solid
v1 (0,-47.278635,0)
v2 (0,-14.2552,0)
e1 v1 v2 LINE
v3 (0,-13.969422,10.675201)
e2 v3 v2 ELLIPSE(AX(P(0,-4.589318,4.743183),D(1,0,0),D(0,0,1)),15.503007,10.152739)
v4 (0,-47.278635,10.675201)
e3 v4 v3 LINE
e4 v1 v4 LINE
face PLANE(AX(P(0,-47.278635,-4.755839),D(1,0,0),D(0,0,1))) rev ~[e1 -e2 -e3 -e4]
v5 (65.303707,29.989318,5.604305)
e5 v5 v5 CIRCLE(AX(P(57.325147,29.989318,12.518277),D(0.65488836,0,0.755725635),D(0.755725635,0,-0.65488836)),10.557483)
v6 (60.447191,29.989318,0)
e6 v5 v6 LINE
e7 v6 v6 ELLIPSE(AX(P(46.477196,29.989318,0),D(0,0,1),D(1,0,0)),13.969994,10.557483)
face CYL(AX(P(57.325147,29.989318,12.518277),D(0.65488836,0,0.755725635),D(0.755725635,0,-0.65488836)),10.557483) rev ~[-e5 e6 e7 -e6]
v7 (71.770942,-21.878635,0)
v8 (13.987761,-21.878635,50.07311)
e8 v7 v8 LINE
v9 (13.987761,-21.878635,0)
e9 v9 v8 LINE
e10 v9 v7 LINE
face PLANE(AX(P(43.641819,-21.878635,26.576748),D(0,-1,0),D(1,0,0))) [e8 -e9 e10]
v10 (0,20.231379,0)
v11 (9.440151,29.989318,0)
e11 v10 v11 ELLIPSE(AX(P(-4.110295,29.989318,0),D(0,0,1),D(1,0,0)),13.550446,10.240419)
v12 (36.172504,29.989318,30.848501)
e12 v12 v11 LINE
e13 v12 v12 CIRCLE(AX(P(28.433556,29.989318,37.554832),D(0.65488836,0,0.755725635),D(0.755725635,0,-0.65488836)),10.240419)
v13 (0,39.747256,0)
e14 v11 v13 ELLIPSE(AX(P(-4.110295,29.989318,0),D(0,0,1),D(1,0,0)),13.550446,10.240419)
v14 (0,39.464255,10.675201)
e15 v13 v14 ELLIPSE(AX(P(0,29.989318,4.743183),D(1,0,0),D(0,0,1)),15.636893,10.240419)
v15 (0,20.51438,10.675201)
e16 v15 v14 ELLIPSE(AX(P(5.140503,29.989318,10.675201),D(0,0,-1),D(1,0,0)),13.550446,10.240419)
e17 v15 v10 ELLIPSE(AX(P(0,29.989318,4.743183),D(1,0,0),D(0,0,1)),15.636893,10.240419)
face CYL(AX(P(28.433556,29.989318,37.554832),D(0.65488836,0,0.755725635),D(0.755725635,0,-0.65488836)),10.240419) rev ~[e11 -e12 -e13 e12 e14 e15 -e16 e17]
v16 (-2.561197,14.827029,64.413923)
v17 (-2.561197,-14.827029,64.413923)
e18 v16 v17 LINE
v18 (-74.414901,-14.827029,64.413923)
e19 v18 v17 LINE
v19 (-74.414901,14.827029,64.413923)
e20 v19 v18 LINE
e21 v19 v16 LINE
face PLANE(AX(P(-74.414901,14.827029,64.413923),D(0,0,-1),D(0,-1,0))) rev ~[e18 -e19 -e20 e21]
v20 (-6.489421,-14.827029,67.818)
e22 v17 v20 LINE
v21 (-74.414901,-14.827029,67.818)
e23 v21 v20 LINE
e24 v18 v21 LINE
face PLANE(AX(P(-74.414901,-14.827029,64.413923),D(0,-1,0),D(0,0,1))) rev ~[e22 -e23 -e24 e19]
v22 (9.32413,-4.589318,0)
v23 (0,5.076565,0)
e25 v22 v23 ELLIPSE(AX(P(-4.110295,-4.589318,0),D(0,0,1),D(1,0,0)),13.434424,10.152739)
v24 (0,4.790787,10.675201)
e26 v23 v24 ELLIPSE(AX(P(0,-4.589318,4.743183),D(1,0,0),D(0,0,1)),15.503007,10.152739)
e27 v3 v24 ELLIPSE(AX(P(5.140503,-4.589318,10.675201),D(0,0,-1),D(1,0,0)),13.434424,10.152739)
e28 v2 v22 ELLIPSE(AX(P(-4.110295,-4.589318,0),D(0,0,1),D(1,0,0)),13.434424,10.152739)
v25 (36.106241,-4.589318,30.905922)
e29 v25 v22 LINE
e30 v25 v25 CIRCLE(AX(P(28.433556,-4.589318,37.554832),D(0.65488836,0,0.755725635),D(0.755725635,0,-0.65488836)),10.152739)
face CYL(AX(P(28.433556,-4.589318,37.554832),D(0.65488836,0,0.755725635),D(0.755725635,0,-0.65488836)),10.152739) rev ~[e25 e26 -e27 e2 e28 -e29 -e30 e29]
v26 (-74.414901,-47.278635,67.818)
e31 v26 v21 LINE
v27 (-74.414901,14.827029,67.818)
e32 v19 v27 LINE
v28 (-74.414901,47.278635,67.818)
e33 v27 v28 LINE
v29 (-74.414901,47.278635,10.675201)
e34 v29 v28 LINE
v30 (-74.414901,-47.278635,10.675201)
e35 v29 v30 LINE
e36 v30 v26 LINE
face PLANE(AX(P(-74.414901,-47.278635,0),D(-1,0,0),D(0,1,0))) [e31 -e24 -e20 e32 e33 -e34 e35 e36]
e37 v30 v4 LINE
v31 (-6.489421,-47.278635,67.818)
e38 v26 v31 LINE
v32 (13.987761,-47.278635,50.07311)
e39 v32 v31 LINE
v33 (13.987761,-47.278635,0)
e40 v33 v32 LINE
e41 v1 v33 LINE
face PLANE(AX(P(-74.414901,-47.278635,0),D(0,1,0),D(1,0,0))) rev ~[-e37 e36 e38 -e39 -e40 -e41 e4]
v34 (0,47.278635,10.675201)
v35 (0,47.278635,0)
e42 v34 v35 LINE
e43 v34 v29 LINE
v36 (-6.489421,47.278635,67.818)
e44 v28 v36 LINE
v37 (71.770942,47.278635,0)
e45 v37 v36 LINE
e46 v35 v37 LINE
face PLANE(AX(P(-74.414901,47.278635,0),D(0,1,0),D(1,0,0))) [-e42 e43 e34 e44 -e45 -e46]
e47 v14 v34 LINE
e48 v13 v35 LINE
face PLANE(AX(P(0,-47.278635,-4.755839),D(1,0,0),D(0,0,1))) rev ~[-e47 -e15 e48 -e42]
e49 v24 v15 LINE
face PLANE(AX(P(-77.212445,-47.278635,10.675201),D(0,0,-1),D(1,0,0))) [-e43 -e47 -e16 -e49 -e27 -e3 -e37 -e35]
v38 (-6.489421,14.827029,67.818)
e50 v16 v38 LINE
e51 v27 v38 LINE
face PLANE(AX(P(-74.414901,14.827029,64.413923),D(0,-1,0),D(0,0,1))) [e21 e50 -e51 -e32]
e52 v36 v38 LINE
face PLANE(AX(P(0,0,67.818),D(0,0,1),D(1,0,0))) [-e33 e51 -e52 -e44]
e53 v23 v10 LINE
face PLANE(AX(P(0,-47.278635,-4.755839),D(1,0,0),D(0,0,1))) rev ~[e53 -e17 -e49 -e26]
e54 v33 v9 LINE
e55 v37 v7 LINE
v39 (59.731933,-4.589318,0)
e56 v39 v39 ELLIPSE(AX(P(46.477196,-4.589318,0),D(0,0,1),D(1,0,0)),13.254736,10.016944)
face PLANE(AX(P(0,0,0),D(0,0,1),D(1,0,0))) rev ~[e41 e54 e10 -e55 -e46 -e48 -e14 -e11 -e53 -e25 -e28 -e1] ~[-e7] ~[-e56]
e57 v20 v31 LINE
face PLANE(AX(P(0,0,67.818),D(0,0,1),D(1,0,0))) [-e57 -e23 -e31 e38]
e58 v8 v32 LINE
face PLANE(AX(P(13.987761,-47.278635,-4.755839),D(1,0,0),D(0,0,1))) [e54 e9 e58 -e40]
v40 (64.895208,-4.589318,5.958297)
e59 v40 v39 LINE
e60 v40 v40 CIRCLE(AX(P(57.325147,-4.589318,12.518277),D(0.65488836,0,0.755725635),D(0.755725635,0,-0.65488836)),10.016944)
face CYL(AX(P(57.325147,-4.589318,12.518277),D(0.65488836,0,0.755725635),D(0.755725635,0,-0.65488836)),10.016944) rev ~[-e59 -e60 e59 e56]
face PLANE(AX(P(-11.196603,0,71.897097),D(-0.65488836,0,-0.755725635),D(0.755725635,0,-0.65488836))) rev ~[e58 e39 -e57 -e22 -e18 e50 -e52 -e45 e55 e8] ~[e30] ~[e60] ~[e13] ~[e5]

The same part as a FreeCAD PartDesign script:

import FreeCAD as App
import Part
import Sketcher

V = App.Vector
Q = App.Units.Quantity

doc = App.newDocument("Part")
body = doc.addObject("PartDesign::Body", "Body")

# Sketch on XY plane
sketch1 = body.newObject("Sketcher::SketchObject", "Sketch")
sketch1.AttachmentSupport = (doc.getObject("XY_Plane"), [""])
sketch1.MapMode = "FlatFace"
sketch1.addGeometry(Part.LineSegment(V(-74, 47, 0), V(-74, -47, 0)), False)
sketch1.addGeometry(Part.LineSegment(V(-74, -47, 0), V(74, -47, 0)), False)
sketch1.addGeometry(Part.LineSegment(V(74, -47, 0), V(74, 47, 0)), False)
sketch1.addGeometry(Part.LineSegment(V(74, 47, 0), V(-74, 47, 0)), False)
sketch1.addConstraint(Sketcher.Constraint("Coincident", 0, 2, 1, 1))
sketch1.addConstraint(Sketcher.Constraint("Coincident", 1, 2, 2, 1))
sketch1.addConstraint(Sketcher.Constraint("Coincident", 2, 2, 3, 1))
sketch1.addConstraint(Sketcher.Constraint("Coincident", 3, 2, 0, 1))
sketch1.addConstraint(Sketcher.Constraint("Vertical", 0))
sketch1.addConstraint(Sketcher.Constraint("Horizontal", 1))
sketch1.addConstraint(Sketcher.Constraint("Vertical", 2))
sketch1.addConstraint(Sketcher.Constraint("Horizontal", 3))
sketch1.addConstraint(Sketcher.Constraint("Symmetric", 0, 2, 2, 2, -1, 1))
sketch1.addConstraint(Sketcher.Constraint("DistanceY", 0, 2, 0, 1, 94.55727))
sketch1.addConstraint(Sketcher.Constraint("DistanceX", 0, 2, -1, 1, 74.414901))
pad1 = body.newObject("PartDesign::Pad", "Pad")
pad1.Profile = sketch1
pad1.Length = Q("2.67 in")

# Sketch on XZ plane
sketch2 = body.newObject("Sketcher::SketchObject", "Sketch001")
sketch2.AttachmentSupport = (doc.getObject("XZ_Plane"), [""])
sketch2.MapMode = "FlatFace"
sketch2.addGeometry(Part.LineSegment(V(83, 72, 0), V(-11, 72, 0)), False)
sketch2.addGeometry(Part.LineSegment(V(-11, 72, 0), V(83, -10, 0)), False)
sketch2.addGeometry(Part.LineSegment(V(83, -10, 0), V(83, 72, 0)), False)
sketch2.addConstraint(Sketcher.Constraint("Coincident", 0, 2, 1, 1))
sketch2.addConstraint(Sketcher.Constraint("Coincident", 1, 2, 2, 1))
sketch2.addConstraint(Sketcher.Constraint("Coincident", 2, 2, 0, 1))
sketch2.addConstraint(Sketcher.Constraint("Horizontal", 0))
sketch2.addConstraint(Sketcher.Constraint("Vertical", 2))
sketch2.addConstraint(Sketcher.Constraint("DistanceX", 0, 2, 0, 1, 94.589459))
sketch2.addConstraint(Sketcher.Constraint("DistanceY", 2, 1, 2, 2, 81.968287))
sketch2.addConstraint(Sketcher.Constraint("DistanceY", 1, 2, -1, 1, 10.07119))
sketch2.addConstraint(Sketcher.Constraint("DistanceX", 0, 2, -1, 1, 11.196603))
pocket1 = body.newObject("PartDesign::Pocket", "Pocket")
pocket1.Profile = sketch2
pocket1.Length = Q("5 in")
pocket1.Midplane = True

# Sketch on XZ plane
sketch3 = body.newObject("Sketcher::SketchObject", "Sketch002")
sketch3.AttachmentSupport = (doc.getObject("XZ_Plane"), [""])
sketch3.MapMode = "FlatFace"
sketch3.AttachmentOffset = App.Placement(V(0, 0, 47.278635), App.Rotation())
sketch3.addGeometry(Part.LineSegment(V(-77, 11, 0), V(-77, -5, 0)), False)
sketch3.addGeometry(Part.LineSegment(V(-77, -5, 0), V(0, -5, 0)), False)
sketch3.addGeometry(Part.LineSegment(V(0, -5, 0), V(0, 11, 0)), False)
sketch3.addGeometry(Part.LineSegment(V(0, 11, 0), V(-77, 11, 0)), False)
sketch3.addConstraint(Sketcher.Constraint("Coincident", 0, 2, 1, 1))
sketch3.addConstraint(Sketcher.Constraint("Coincident", 1, 2, 2, 1))
sketch3.addConstraint(Sketcher.Constraint("Coincident", 2, 2, 3, 1))
sketch3.addConstraint(Sketcher.Constraint("Coincident", 3, 2, 0, 1))
sketch3.addConstraint(Sketcher.Constraint("Vertical", 0))
sketch3.addConstraint(Sketcher.Constraint("Horizontal", 1))
sketch3.addConstraint(Sketcher.Constraint("Vertical", 2))
sketch3.addConstraint(Sketcher.Constraint("Horizontal", 3))
sketch3.addConstraint(Sketcher.Constraint("PointOnObject", 1, 2, -2))
sketch3.addConstraint(Sketcher.Constraint("DistanceY", 0, 2, 0, 1, 15.43104))
sketch3.addConstraint(Sketcher.Constraint("DistanceY", -1, 1, 2, 2, 10.675201))
sketch3.addConstraint(Sketcher.Constraint("DistanceX", 1, 1, 1, 2, 77.212445))
pocket2 = body.newObject("PartDesign::Pocket", "Pocket001")
pocket2.Profile = sketch3
pocket2.Length = Q("3.95 in")

# Sketch on XZ plane
sketch4 = body.newObject("Sketcher::SketchObject", "Sketch003")
sketch4.AttachmentSupport = (doc.getObject("XZ_Plane"), [""])
sketch4.MapMode = "FlatFace"
sketch4.AttachmentOffset = App.Placement(V(0, 0, 47.278635), App.Rotation())
sketch4.addGeometry(Part.LineSegment(V(14, 58, 0), V(14, -5, 0)), False)
sketch4.addGeometry(Part.LineSegment(V(14, -5, 0), V(73, -5, 0)), False)
sketch4.addGeometry(Part.LineSegment(V(73, -5, 0), V(73, 58, 0)), False)
sketch4.addGeometry(Part.LineSegment(V(73, 58, 0), V(14, 58, 0)), False)
sketch4.addConstraint(Sketcher.Constraint("Coincident", 0, 2, 1, 1))
sketch4.addConstraint(Sketcher.Constraint("Coincident", 1, 2, 2, 1))
sketch4.addConstraint(Sketcher.Constraint("Coincident", 2, 2, 3, 1))
sketch4.addConstraint(Sketcher.Constraint("Coincident", 3, 2, 0, 1))
sketch4.addConstraint(Sketcher.Constraint("Vertical", 0))
sketch4.addConstraint(Sketcher.Constraint("Horizontal", 1))
sketch4.addConstraint(Sketcher.Constraint("Vertical", 2))
sketch4.addConstraint(Sketcher.Constraint("Horizontal", 3))
sketch4.addConstraint(Sketcher.Constraint("DistanceX", 1, 1, 1, 2, 59.308115))
sketch4.addConstraint(Sketcher.Constraint("DistanceY", 0, 2, 0, 1, 62.665175))
sketch4.addConstraint(Sketcher.Constraint("DistanceX", -1, 1, 0, 2, 13.987761))
sketch4.addConstraint(Sketcher.Constraint("DistanceY", 0, 2, -1, 1, 4.755839))
pocket3 = body.newObject("PartDesign::Pocket", "Pocket002")
pocket3.Profile = sketch4
pocket3.Length = Q("1 in")

# Sketch on YZ plane
sketch5 = body.newObject("Sketcher::SketchObject", "Sketch004")
sketch5.AttachmentSupport = (doc.getObject("YZ_Plane"), [""])
sketch5.MapMode = "FlatFace"
sketch5.AttachmentOffset = App.Placement(V(0, 0, -74.414901), App.Rotation())
sketch5.addGeometry(Part.LineSegment(V(15, 71, 0), V(15, 64, 0)), False)
sketch5.addGeometry(Part.LineSegment(V(15, 64, 0), V(-15, 64, 0)), False)
sketch5.addGeometry(Part.LineSegment(V(-15, 64, 0), V(-15, 71, 0)), False)
sketch5.addGeometry(Part.LineSegment(V(-15, 71, 0), V(15, 71, 0)), False)
sketch5.addConstraint(Sketcher.Constraint("Coincident", 0, 2, 1, 1))
sketch5.addConstraint(Sketcher.Constraint("Coincident", 1, 2, 2, 1))
sketch5.addConstraint(Sketcher.Constraint("Coincident", 2, 2, 3, 1))
sketch5.addConstraint(Sketcher.Constraint("Coincident", 3, 2, 0, 1))
sketch5.addConstraint(Sketcher.Constraint("Vertical", 0))
sketch5.addConstraint(Sketcher.Constraint("Horizontal", 1))
sketch5.addConstraint(Sketcher.Constraint("Vertical", 2))
sketch5.addConstraint(Sketcher.Constraint("Horizontal", 3))
sketch5.addConstraint(Sketcher.Constraint("DistanceX", 1, 2, 1, 1, 29.654058))
sketch5.addConstraint(Sketcher.Constraint("DistanceY", 0, 2, 0, 1, 6.808154))
sketch5.addConstraint(Sketcher.Constraint("DistanceX", -1, 1, 0, 2, 14.827029))
sketch5.addConstraint(Sketcher.Constraint("DistanceY", -1, 1, 0, 2, 64.413923))
pocket4 = body.newObject("PartDesign::Pocket", "Pocket003")
pocket4.Profile = sketch5
pocket4.Length = Q("3.43 in")
pocket4.Reversed = True

# Sketch on an angled plane
sketch6 = body.newObject("Sketcher::SketchObject", "Sketch005")
sketch6.Placement = App.Placement(V(30.781033, 0, 35.520582), App.Rotation(V(0.755725635, 0, -0.65488836), V(0, 0.999999999, 0), V(0.65488836, 0, 0.755725635), "ZXY"))
sketch6.addGeometry(Part.Circle(V(-3, -5, 0), V(0, 0, 1), 10), False)
sketch6.addGeometry(Part.Circle(V(35, -5, 0), V(0, 0, 1), 10), False)
sketch6.addGeometry(Part.Circle(V(35, 30, 0), V(0, 0, 1), 11), False)
sketch6.addGeometry(Part.Circle(V(-3, 30, 0), V(0, 0, 1), 10), False)
sketch6.addConstraint(Sketcher.Constraint("Horizontal", 0, 3, 1, 3))
sketch6.addConstraint(Sketcher.Constraint("Horizontal", 2, 3, 3, 3))
sketch6.addConstraint(Sketcher.Constraint("Vertical", 1, 3, 2, 3))
sketch6.addConstraint(Sketcher.Constraint("Vertical", 0, 3, 3, 3))
sketch6.addConstraint(Sketcher.Constraint("Diameter", 3, 20.480839))
sketch6.addConstraint(Sketcher.Constraint("Diameter", 0, 20.305478))
sketch6.addConstraint(Sketcher.Constraint("Diameter", 1, 20.033888))
sketch6.addConstraint(Sketcher.Constraint("Diameter", 2, 21.114966))
sketch6.addConstraint(Sketcher.Constraint("DistanceX", -1, 1, 1, 3, 35.124009))
sketch6.addConstraint(Sketcher.Constraint("DistanceX", 0, 3, -1, 1, 3.106255))
sketch6.addConstraint(Sketcher.Constraint("DistanceY", 0, 3, -1, 1, 4.589318))
sketch6.addConstraint(Sketcher.Constraint("DistanceY", -1, 1, 2, 3, 29.989318))
pocket5 = body.newObject("PartDesign::Pocket", "Pocket004")
pocket5.Profile = sketch6
pocket5.Length = Q("4.24 in")

doc.recompute()
